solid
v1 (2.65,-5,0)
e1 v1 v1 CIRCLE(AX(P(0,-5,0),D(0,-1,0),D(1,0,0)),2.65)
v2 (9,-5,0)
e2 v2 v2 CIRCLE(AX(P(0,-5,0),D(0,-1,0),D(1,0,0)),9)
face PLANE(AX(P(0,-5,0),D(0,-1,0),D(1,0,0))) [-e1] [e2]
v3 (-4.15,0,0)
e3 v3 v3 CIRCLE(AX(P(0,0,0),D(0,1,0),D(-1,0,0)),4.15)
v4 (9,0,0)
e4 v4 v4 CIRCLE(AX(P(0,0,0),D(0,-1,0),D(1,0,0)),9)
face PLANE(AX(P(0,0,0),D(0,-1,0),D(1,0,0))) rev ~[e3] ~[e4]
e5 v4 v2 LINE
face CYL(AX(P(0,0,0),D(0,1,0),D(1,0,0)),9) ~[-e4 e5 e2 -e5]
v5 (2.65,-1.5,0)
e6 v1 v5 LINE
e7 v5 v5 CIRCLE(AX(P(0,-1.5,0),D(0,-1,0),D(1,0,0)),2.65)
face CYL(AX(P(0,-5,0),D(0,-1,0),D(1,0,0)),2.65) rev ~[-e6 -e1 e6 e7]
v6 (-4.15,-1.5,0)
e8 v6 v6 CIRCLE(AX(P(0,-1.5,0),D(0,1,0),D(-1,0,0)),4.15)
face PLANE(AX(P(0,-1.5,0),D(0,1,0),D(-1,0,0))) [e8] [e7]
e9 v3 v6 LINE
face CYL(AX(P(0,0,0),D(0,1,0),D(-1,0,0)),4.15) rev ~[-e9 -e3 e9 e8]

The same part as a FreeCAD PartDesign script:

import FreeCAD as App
import Part
import Sketcher

doc = App.newDocument("Part")
params = doc.addObject("Spreadsheet::Sheet", "Params")
for row, (alias, value) in enumerate([
    ("sketch1_diameter", "18 mm"),
    ("pad1_length", "5 mm"),
    ("sketch2_diameter", "8.3 mm"),
    ("pocket1_length", "1.5 mm"),
    ("sketch3_diameter", "5.3 mm"),
], start=1):
    params.set(f"A{row}", alias)
    params.set(f"B{row}", "=" + value)
    params.setAlias(f"B{row}", alias)

body = doc.addObject("PartDesign::Body", "Body")

# Sketch on XZ plane
sketch1 = body.newObject("Sketcher::SketchObject", "Sketch")
sketch1.AttachmentSupport = (doc.getObject("XZ_Plane"), [""])
sketch1.MapMode = "FlatFace"
sketch1.addGeometry(Part.Circle(App.Vector(0, 0, 0), App.Vector(0, 0, 1), 9), False)
sketch1.addConstraint([
    Sketcher.Constraint("Coincident", 0, 3, -1, 1),
    Sketcher.Constraint("Diameter", 0, 18.0),
])
sketch1.setExpression("Constraints[1]", "Params.sketch1_diameter")
pad1 = body.newObject("PartDesign::Pad", "Pad")
pad1.Profile = sketch1
pad1.setExpression("Length", "Params.pad1_length")

# Sketch on XZ plane
sketch2 = body.newObject("Sketcher::SketchObject", "Sketch001")
sketch2.AttachmentSupport = (doc.getObject("XZ_Plane"), [""])
sketch2.MapMode = "FlatFace"
sketch2.addGeometry(Part.Circle(App.Vector(0, 0, 0), App.Vector(0, 0, 1), 4.2), False)
sketch2.addConstraint([
    Sketcher.Constraint("Coincident", 0, 3, -1, 1),
    Sketcher.Constraint("Diameter", 0, 8.3),
])
sketch2.setExpression("Constraints[1]", "Params.sketch2_diameter")
pocket1 = body.newObject("PartDesign::Pocket", "Pocket")
pocket1.Profile = sketch2
pocket1.setExpression("Length", "Params.pocket1_length")
pocket1.Reversed = True

# Sketch on XZ plane
sketch3 = body.newObject("Sketcher::SketchObject", "Sketch002")
sketch3.AttachmentSupport = (doc.getObject("XZ_Plane"), [""])
sketch3.MapMode = "FlatFace"
sketch3.AttachmentOffset = App.Placement(App.Vector(0, 0, 5), App.Rotation())
sketch3.addGeometry(Part.Circle(App.Vector(0, 0, 0), App.Vector(0, 0, 1), 2.6), False)
sketch3.addConstraint([
    Sketcher.Constraint("Coincident", 0, 3, -1, 1),
    Sketcher.Constraint("Diameter", 0, 5.3),
])
sketch3.setExpression("Constraints[1]", "Params.sketch3_diameter")
pocket2 = body.newObject("PartDesign::Pocket", "Pocket001")
pocket2.Profile = sketch3
pocket2.Type = "ThroughAll"

doc.recompute()
